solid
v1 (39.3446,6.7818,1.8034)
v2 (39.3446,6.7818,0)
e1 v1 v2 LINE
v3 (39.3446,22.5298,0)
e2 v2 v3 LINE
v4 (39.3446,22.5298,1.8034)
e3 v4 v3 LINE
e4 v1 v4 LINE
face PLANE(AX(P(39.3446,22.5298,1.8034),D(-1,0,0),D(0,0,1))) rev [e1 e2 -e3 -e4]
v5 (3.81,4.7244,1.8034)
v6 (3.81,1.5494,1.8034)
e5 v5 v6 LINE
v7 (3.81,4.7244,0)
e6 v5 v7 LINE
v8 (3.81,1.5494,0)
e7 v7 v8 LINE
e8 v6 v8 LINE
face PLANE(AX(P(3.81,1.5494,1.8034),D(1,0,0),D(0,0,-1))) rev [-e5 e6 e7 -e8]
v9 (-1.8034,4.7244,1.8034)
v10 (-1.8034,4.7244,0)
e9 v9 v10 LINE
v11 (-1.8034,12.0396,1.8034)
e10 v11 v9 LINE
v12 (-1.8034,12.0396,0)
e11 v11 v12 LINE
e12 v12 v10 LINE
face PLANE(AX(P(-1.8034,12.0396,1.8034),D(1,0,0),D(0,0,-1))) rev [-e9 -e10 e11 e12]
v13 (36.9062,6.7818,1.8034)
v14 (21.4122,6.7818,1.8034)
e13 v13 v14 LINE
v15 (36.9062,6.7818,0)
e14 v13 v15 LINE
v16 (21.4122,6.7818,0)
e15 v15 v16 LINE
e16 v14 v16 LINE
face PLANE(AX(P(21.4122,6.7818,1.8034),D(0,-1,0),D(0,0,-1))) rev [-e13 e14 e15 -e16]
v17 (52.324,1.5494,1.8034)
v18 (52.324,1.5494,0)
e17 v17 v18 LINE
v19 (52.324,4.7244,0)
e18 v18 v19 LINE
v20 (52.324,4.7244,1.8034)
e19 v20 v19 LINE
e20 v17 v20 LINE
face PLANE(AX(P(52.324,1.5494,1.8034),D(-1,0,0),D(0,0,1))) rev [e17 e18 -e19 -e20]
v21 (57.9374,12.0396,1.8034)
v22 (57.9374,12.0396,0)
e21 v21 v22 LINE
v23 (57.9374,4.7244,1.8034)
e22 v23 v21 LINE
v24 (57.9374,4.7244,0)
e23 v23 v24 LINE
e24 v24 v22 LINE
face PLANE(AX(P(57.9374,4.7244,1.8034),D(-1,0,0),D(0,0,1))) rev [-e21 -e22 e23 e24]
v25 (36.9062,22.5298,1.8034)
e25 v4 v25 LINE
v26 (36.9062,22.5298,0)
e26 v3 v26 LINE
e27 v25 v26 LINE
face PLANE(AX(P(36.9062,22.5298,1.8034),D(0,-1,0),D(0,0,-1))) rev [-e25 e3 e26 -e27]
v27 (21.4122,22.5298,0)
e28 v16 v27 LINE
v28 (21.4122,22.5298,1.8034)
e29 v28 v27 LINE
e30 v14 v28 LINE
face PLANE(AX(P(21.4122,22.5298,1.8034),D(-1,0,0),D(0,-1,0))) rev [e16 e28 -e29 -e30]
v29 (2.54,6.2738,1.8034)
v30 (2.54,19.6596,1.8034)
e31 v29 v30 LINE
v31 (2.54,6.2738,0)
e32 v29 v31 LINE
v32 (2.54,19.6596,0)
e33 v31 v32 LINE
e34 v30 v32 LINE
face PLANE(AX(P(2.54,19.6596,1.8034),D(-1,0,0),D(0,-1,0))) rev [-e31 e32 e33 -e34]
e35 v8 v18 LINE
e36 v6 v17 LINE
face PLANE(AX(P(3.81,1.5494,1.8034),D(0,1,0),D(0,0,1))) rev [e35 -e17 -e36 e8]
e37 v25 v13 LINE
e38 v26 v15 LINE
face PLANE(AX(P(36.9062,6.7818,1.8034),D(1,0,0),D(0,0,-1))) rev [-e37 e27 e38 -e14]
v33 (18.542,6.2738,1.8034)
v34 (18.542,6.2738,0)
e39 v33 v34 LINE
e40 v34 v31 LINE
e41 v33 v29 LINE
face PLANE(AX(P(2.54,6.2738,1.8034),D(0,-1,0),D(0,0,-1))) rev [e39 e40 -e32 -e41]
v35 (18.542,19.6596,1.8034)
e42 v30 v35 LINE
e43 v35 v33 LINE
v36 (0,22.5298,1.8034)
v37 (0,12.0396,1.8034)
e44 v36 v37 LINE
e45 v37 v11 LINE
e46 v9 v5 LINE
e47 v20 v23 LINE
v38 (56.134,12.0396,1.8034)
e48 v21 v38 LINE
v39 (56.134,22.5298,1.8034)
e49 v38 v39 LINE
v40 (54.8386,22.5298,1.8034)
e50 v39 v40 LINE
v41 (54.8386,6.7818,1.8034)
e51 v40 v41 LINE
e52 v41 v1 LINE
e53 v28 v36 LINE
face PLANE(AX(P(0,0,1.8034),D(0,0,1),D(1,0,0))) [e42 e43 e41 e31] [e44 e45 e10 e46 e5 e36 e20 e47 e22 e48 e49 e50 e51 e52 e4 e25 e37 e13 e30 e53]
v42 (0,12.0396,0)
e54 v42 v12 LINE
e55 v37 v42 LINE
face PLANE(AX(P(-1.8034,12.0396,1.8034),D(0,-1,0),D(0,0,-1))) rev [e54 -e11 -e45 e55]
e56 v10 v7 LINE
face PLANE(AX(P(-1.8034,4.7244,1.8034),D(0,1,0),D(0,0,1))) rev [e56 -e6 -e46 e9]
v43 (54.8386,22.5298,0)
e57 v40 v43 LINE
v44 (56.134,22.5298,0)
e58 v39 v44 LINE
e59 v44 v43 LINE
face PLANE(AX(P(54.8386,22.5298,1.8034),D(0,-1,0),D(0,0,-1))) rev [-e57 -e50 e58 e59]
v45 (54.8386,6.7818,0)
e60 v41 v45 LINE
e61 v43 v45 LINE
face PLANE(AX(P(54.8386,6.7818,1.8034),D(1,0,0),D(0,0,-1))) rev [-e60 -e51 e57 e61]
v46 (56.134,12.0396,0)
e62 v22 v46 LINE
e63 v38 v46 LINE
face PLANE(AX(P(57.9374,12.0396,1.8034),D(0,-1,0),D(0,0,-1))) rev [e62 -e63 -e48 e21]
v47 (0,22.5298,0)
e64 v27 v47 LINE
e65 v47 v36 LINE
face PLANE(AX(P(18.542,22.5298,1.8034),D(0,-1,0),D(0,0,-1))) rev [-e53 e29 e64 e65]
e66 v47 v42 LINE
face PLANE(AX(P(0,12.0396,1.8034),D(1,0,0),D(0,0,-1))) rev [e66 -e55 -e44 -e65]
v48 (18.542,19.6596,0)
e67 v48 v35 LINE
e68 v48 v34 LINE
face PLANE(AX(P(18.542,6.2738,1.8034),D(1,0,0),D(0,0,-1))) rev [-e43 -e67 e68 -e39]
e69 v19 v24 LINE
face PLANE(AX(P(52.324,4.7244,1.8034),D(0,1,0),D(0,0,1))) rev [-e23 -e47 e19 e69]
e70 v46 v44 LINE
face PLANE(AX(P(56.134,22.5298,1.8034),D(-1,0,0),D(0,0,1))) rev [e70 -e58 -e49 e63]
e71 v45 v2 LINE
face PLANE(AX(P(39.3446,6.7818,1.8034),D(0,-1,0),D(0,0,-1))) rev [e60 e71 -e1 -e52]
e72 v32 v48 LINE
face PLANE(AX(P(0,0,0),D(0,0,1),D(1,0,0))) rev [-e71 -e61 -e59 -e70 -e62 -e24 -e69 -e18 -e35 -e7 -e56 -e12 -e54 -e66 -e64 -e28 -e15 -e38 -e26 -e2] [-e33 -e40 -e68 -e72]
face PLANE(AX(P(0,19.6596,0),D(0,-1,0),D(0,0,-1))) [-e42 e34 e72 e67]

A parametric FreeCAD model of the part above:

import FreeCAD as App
import Part
import Sketcher
from FreeCAD import Vector
Q = App.Units.Quantity


def add_polygon(sketch, points):
    """Adds a closed chain of lines whose ends are joined by coincident constraints."""
    first, n = sketch.GeometryCount, len(points)
    for a, b in zip(points, points[1:] + points[:1]):
        sketch.addGeometry(Part.LineSegment(App.Vector(*a, 0), App.Vector(*b, 0)), False)
    for i in range(n):
        sketch.addConstraint(Sketcher.Constraint("Coincident", first + i, 2, first + (i + 1) % n, 1))

doc = App.newDocument("Part")
params = doc.addObject("Spreadsheet::Sheet", "Params")
for row, (alias, value) in enumerate([
    ("sketch1_width", "0.1 in"),
    ("sketch1_height", "0.3 in"),
    ("sketch1_width2", "1.91 in"),
    ("sketch1_width3", "0.61 in"),
    ("sketch1_width4", "0.63 in"),
    ("pad1_length", "0.071 in"),
    ("sketch2_width", "0.73 in"),
    ("sketch2_height", "0.113 in"),
    ("pad2_length", "0.071 in"),
], start=1):
    params.set(f"A{row}", alias)
    params.set(f"B{row}", "=" + value)
    params.setAlias(f"B{row}", alias)

body = doc.addObject("PartDesign::Body", "Body")

# Sketch on XY plane
sketch1 = doc.addObject("Sketcher::SketchObject", "Sketch")
body.addObject(sketch1)
sketch1.AttachmentSupport = (doc.XY_Plane, [""])
sketch1.MapMode = "FlatFace"
add_polygon(sketch1, [(0, 12), (-1.8, 12), (-1.8, 4.7), (3.8, 4.7), (3.8, 1.5), (52.3, 1.5), (52.3, 4.7), (57.9, 4.7), (57.9, 12), (56.1, 12), (56.1, 22.5), (54.8, 22.5), (54.8, 6.8), (39.3, 6.8), (39.3, 22.5), (36.9, 22.5), (36.9, 6.8), (21.4, 6.8), (21.4, 22.5), (18.5, 22.5), (18.5, 6.3), (2.5, 6.3), (2.5, 19.7), (0, 19.7)])  # lines 0-23
sketch1.addConstraint([
    Sketcher.Constraint("Horizontal", 0),
    Sketcher.Constraint("Vertical", 1),
    Sketcher.Constraint("Horizontal", 2),
    Sketcher.Constraint("Vertical", 3),
    Sketcher.Constraint("Horizontal", 4),
    Sketcher.Constraint("Vertical", 5),
    Sketcher.Constraint("Horizontal", 6),
    Sketcher.Constraint("Vertical", 7),
    Sketcher.Constraint("Horizontal", 8),
    Sketcher.Constraint("Vertical", 9),
    Sketcher.Constraint("Horizontal", 10),
    Sketcher.Constraint("Vertical", 11),
    Sketcher.Constraint("Horizontal", 12),
    Sketcher.Constraint("Vertical", 13),
    Sketcher.Constraint("Horizontal", 14),
    Sketcher.Constraint("Vertical", 15),
    Sketcher.Constraint("Horizontal", 16),
    Sketcher.Constraint("Vertical", 17),
    Sketcher.Constraint("Horizontal", 18),
    Sketcher.Constraint("Vertical", 19),
    Sketcher.Constraint("Horizontal", 20),
    Sketcher.Constraint("Vertical", 21),
    Sketcher.Constraint("Horizontal", 22),
    Sketcher.Constraint("Vertical", 23),
    Sketcher.Constraint("PointOnObject", 22, 2, -2),
    Sketcher.Constraint("Horizontal", 2, 2, 5, 2),
    Sketcher.Constraint("Horizontal", 0, 2, 7, 2),
    Sketcher.Constraint("Horizontal", 10, 2, 13, 2),
    Sketcher.Constraint("Horizontal", 12, 2, 15, 2),
    Sketcher.Constraint("Horizontal", 14, 2, 17, 2),
    Sketcher.Constraint("Equal", 2, 6),
    Sketcher.Constraint("Equal", 0, 8),
    Sketcher.Constraint("Equal", 12, 16),
    Sketcher.Constraint("DistanceX", 22, 2, 22, 1, Q("0.1 in")),
    Sketcher.Constraint("DistanceY", 23, 2, 23, 1, Q("0.3 in")),
    Sketcher.Constraint("DistanceX", 4, 1, 4, 2, Q("1.91 in")),
    Sketcher.Constraint("DistanceX", 12, 2, 12, 1, Q("0.61 in")),
    Sketcher.Constraint("DistanceX", 20, 2, 20, 1, Q("0.63 in")),
    Sketcher.Constraint("DistanceY", 11, 2, 11, 1, Q("0.62 in")),
    Sketcher.Constraint("DistanceY", 19, 2, 19, 1, Q("0.64 in")),
    Sketcher.Constraint("DistanceX", 0, 2, 0, 1, Q("0.071 in")),
    Sketcher.Constraint("DistanceX", 2, 1, 2, 2, Q("0.221 in")),
    Sketcher.Constraint("DistanceX", 10, 2, 10, 1, Q("0.051 in")),
    Sketcher.Constraint("DistanceX", 14, 2, 14, 1, Q("0.096 in")),
    Sketcher.Constraint("DistanceY", 1, 2, 1, 1, Q("0.288 in")),
    Sketcher.Constraint("DistanceY", 3, 2, 3, 1, Q("0.125 in")),
    Sketcher.Constraint("DistanceY", 9, 1, 9, 2, Q("0.413 in")),
    Sketcher.Constraint("DistanceY", -1, 1, 0, 2, Q("0.474 in")),
])
sketch1.setExpression("Constraints[57]", "Params.sketch1_width")
sketch1.setExpression("Constraints[58]", "Params.sketch1_height")
sketch1.setExpression("Constraints[59]", "Params.sketch1_width2")
sketch1.setExpression("Constraints[60]", "Params.sketch1_width3")
sketch1.setExpression("Constraints[61]", "Params.sketch1_width4")
pad1 = doc.addObject("PartDesign::Pad", "Pad")
body.addObject(pad1)
pad1.Profile = sketch1
pad1.setExpression("Length", "Params.pad1_length")

# Sketch on XY plane
sketch2 = doc.addObject("Sketcher::SketchObject", "Sketch001")
body.addObject(sketch2)
sketch2.AttachmentSupport = (doc.XY_Plane, [""])
sketch2.MapMode = "FlatFace"
sketch2.AttachmentOffset = App.Placement(Vector(0, 0, 0.071 * 25.4), App.Rotation())
add_polygon(sketch2, [(0, 22.5), (0, 19.7), (18.5, 19.7), (18.5, 22.5)])  # lines 0-3
sketch2.addConstraint([
    Sketcher.Constraint("Vertical", 0),
    Sketcher.Constraint("Horizontal", 1),
    Sketcher.Constraint("Vertical", 2),
    Sketcher.Constraint("Horizontal", 3),
    Sketcher.Constraint("PointOnObject", 0, 2, -2),
    Sketcher.Constraint("DistanceX", 1, 1, 1, 2, Q("0.73 in")),
    Sketcher.Constraint("DistanceY", 0, 2, 0, 1, Q("0.113 in")),
    Sketcher.Constraint("DistanceY", -1, 1, 0, 2, Q("0.774 in")),
])
sketch2.setExpression("Constraints[9]", "Params.sketch2_width")
sketch2.setExpression("Constraints[10]", "Params.sketch2_height")
pad2 = doc.addObject("PartDesign::Pad", "Pad001")
body.addObject(pad2)
pad2.Profile = sketch2
pad2.setExpression("Length", "Params.pad2_length")
pad2.Reversed = True

doc.recompute()
